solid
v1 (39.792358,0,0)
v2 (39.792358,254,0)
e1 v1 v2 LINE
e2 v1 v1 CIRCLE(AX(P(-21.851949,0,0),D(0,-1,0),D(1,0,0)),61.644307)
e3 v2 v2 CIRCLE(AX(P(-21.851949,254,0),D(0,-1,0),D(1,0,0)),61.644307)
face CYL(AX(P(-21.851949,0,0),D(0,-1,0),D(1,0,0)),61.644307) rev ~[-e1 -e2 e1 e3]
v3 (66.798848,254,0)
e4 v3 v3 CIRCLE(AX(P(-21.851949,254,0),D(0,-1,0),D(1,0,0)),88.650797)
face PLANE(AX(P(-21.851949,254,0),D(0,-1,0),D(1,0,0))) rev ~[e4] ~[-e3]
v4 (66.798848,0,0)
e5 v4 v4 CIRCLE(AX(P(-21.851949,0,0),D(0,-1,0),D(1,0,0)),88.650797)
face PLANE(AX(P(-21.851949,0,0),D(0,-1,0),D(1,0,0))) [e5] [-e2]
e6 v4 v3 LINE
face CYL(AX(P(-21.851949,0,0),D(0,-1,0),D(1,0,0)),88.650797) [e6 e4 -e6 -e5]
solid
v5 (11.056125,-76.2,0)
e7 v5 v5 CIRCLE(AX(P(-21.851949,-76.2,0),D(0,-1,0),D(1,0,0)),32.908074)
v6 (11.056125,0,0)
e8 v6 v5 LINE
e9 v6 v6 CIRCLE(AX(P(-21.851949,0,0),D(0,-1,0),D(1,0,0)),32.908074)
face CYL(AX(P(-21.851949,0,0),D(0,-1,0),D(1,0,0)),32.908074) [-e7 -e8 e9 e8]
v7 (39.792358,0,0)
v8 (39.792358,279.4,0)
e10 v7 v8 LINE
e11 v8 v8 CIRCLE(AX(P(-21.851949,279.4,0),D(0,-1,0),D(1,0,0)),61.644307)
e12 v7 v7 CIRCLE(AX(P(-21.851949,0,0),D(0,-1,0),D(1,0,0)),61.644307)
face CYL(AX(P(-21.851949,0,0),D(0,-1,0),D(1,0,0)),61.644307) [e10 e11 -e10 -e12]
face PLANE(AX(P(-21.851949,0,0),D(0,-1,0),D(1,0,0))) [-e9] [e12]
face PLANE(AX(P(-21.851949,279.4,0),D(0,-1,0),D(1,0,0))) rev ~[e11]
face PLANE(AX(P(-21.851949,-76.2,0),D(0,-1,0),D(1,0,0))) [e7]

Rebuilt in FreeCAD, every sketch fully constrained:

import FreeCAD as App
import Part
import Sketcher

V = App.Vector
Q = App.Units.Quantity

doc = App.newDocument("Part")
body = doc.addObject("PartDesign::Body", "Body")

sketch1 = body.newObject("Sketcher::SketchObject", "Sketch")
sketch1.AttachmentSupport = (doc.getObject("XZ_Plane"), [""])
sketch1.MapMode = "FlatFace"
sketch1.addGeometry(Part.Circle(V(-22, 0, 0), V(0, 0, 1), 33), False)
sketch1.addConstraint(Sketcher.Constraint("PointOnObject", 0, 3, -1))
sketch1.addConstraint(Sketcher.Constraint("Diameter", 0, 65.816148))
sketch1.addConstraint(Sketcher.Constraint("DistanceX", 0, 3, -1, 1, 21.851949))
pad1 = body.newObject("PartDesign::Pad", "Pad")
pad1.Profile = sketch1
pad1.Type = "TwoLengths"
pad1.Length = Q("3 in")
pad1.Length2 = Q("11 in")

sketch2 = body.newObject("Sketcher::SketchObject", "Sketch001")
sketch2.AttachmentSupport = (doc.getObject("XZ_Plane"), [""])
sketch2.MapMode = "FlatFace"
sketch2.addGeometry(Part.Circle(V(-22, 0, 0), V(0, 0, 1), 62), False)
sketch2.addGeometry(Part.Circle(V(-22, 0, 0), V(0, 0, 1), 33), False)
sketch2.addConstraint(Sketcher.Constraint("Coincident", 1, 3, 0, 3))
sketch2.addConstraint(Sketcher.Constraint("PointOnObject", 0, 3, -1))
sketch2.addConstraint(Sketcher.Constraint("Diameter", 1, 65.816148))
sketch2.addConstraint(Sketcher.Constraint("Diameter", 0, 123.288614))
sketch2.addConstraint(Sketcher.Constraint("DistanceX", 0, 3, -1, 1, 21.851949))
pad2 = body.newObject("PartDesign::Pad", "Pad001")
pad2.Profile = sketch2
pad2.Length = Q("11 in")
pad2.Reversed = True
body2 = doc.addObject("PartDesign::Body", "Body001")

sketch3 = body2.newObject("Sketcher::SketchObject", "Sketch002")
sketch3.AttachmentSupport = (doc.getObject("XZ_Plane001"), [""])
sketch3.MapMode = "FlatFace"
sketch3.addGeometry(Part.Circle(V(-22, 0, 0), V(0, 0, 1), 89), False)
sketch3.addGeometry(Part.Circle(V(-22, 0, 0), V(0, 0, 1), 62), False)
sketch3.addConstraint(Sketcher.Constraint("Coincident", 1, 3, 0, 3))
sketch3.addConstraint(Sketcher.Constraint("PointOnObject", 0, 3, -1))
sketch3.addConstraint(Sketcher.Constraint("Diameter", 0, 177.301594))
sketch3.addConstraint(Sketcher.Constraint("Diameter", 1, 123.288614))
sketch3.addConstraint(Sketcher.Constraint("DistanceX", 0, 3, -1, 1, 21.851949))
pad3 = body2.newObject("PartDesign::Pad", "Pad002")
pad3.Profile = sketch3
pad3.Length = Q("10 in")
pad3.Reversed = True

doc.recompute()
